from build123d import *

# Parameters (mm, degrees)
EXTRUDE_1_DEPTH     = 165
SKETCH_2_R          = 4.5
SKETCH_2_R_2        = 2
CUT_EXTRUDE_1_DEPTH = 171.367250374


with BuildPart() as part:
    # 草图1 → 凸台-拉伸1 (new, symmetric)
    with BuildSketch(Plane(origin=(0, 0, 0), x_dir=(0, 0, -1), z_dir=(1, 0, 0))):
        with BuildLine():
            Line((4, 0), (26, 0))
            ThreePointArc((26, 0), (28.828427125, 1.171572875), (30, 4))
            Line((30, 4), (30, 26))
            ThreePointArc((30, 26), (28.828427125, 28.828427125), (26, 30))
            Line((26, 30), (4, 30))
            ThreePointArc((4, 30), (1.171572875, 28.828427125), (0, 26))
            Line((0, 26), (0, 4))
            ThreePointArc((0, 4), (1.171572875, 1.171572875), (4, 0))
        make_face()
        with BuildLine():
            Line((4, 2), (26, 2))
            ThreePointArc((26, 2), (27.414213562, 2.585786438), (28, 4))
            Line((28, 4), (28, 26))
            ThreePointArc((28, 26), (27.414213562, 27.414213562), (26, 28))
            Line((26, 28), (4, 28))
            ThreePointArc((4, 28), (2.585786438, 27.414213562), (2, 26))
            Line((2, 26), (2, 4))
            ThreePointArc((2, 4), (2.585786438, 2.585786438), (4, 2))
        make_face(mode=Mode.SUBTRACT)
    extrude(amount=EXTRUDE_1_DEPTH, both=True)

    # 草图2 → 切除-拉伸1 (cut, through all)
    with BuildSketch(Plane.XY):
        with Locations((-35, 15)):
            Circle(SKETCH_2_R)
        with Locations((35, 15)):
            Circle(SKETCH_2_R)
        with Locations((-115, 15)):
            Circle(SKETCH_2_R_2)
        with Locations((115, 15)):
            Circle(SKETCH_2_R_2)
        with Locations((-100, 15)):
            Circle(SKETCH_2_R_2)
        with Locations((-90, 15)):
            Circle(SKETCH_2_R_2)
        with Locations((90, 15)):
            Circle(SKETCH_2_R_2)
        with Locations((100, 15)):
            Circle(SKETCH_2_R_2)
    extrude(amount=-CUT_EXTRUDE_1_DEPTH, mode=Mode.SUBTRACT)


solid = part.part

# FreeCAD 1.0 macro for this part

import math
import FreeCAD as App
import Part
import Sketcher

V = App.Vector
Q = App.Units.Quantity

doc = App.newDocument("Part")
params = doc.addObject("Spreadsheet::Sheet", "Params")
for row, (alias, value) in enumerate([
    ("sketch1_radius", "4 mm"),
    ("sketch1_radius2", "2 mm"),
    ("sketch1_width", "22 mm"),
    ("pad1_length", "330 mm"),
    ("sketch2_diameter", "9 mm"),
    ("sketch2_diameter2", "4 mm"),
], start=1):
    params.set(f"A{row}", alias)
    params.set(f"B{row}", "=" + value)
    params.setAlias(f"B{row}", alias)

body = doc.addObject("PartDesign::Body", "Body")

# Sketch on YZ plane
sketch1 = body.newObject("Sketcher::SketchObject", "Sketch")
sketch1.AttachmentSupport = (doc.getObject("YZ_Plane"), [""])
sketch1.MapMode = "FlatFace"
sketch1.addGeometry([
    Part.LineSegment(V(0, -4, 0), V(0, -26, 0)),  # 0
    Part.ArcOfCircle(Part.Circle(V(4, -26, 0), V(0, 0, 1), 4), math.radians(180), math.radians(270)),  # 1
    Part.LineSegment(V(4, -30, 0), V(26, -30, 0)),  # 2
    Part.ArcOfCircle(Part.Circle(V(26, -26, 0), V(0, 0, 1), 4), math.radians(-90), math.radians(0)),  # 3
    Part.LineSegment(V(30, -26, 0), V(30, -4, 0)),  # 4
    Part.ArcOfCircle(Part.Circle(V(26, -4, 0), V(0, 0, 1), 4), math.radians(0), math.radians(90)),  # 5
    Part.LineSegment(V(26, 0, 0), V(4, 0, 0)),  # 6
    Part.ArcOfCircle(Part.Circle(V(4, -4, 0), V(0, 0, 1), 4), math.radians(90), math.radians(180)),  # 7
    Part.LineSegment(V(2, -26, 0), V(2, -4, 0)),  # 8
    Part.ArcOfCircle(Part.Circle(V(4, -4, 0), V(0, 0, 1), 2), math.radians(90), math.radians(180)),  # 9
    Part.LineSegment(V(4, -2, 0), V(26, -2, 0)),  # 10
    Part.ArcOfCircle(Part.Circle(V(26, -4, 0), V(0, 0, 1), 2), math.radians(0), math.radians(90)),  # 11
    Part.LineSegment(V(28, -4, 0), V(28, -26, 0)),  # 12
    Part.ArcOfCircle(Part.Circle(V(26, -26, 0), V(0, 0, 1), 2), math.radians(-90), math.radians(0)),  # 13
    Part.LineSegment(V(26, -28, 0), V(4, -28, 0)),  # 14
    Part.ArcOfCircle(Part.Circle(V(4, -26, 0), V(0, 0, 1), 2), math.radians(-180), math.radians(-90)),  # 15
], False)
sketch1.addConstraint([
    Sketcher.Constraint("Tangent", 0, 2, 1, 1),
    Sketcher.Constraint("Tangent", 1, 2, 2, 1),
    Sketcher.Constraint("Tangent", 2, 2, 3, 1),
    Sketcher.Constraint("Tangent", 3, 2, 4, 1),
    Sketcher.Constraint("Tangent", 4, 2, 5, 1),
    Sketcher.Constraint("Tangent", 5, 2, 6, 1),
    Sketcher.Constraint("Tangent", 6, 2, 7, 1),
    Sketcher.Constraint("Tangent", 7, 2, 0, 1),
    Sketcher.Constraint("Tangent", 8, 2, 9, 2),
    Sketcher.Constraint("Tangent", 9, 1, 10, 1),
    Sketcher.Constraint("Tangent", 10, 2, 11, 2),
    Sketcher.Constraint("Tangent", 11, 1, 12, 1),
    Sketcher.Constraint("Tangent", 12, 2, 13, 2),
    Sketcher.Constraint("Tangent", 13, 1, 14, 1),
    Sketcher.Constraint("Tangent", 14, 2, 15, 2),
    Sketcher.Constraint("Tangent", 15, 1, 8, 1),
    Sketcher.Constraint("Vertical", 0),
    Sketcher.Constraint("Horizontal", 2),
    Sketcher.Constraint("Vertical", 4),
    Sketcher.Constraint("Horizontal", 6),
    Sketcher.Constraint("Vertical", 8),
    Sketcher.Constraint("Horizontal", 10),
    Sketcher.Constraint("Vertical", 12),
    Sketcher.Constraint("Horizontal", 14),
    Sketcher.Constraint("Coincident", 9, 3, 7, 3),
    Sketcher.Constraint("Coincident", 11, 3, 5, 3),
    Sketcher.Constraint("Coincident", 13, 3, 3, 3),
    Sketcher.Constraint("Equal", 1, 3),
    Sketcher.Constraint("Equal", 3, 5),
    Sketcher.Constraint("Equal", 5, 7),
    Sketcher.Constraint("Equal", 13, 15),
    Sketcher.Constraint("PointOnObject", 0, 2, -2),
    Sketcher.Constraint("PointOnObject", 5, 2, -1),
    Sketcher.Constraint("Equal", 14, 0),
    Sketcher.Constraint("Radius", 1, Q("4 mm")),
    Sketcher.Constraint("Radius", 9, Q("2 mm")),
    Sketcher.Constraint("DistanceX", 2, 1, 2, 2, Q("22 mm")),
])
sketch1.setExpression("Constraints[34]", "Params.sketch1_radius")
sketch1.setExpression("Constraints[35]", "Params.sketch1_radius2")
sketch1.setExpression("Constraints[36]", "Params.sketch1_width")
pad1 = body.newObject("PartDesign::Pad", "Pad")
pad1.Profile = sketch1
pad1.setExpression("Length", "Params.pad1_length")
pad1.Midplane = True

# Sketch on XY plane
sketch2 = body.newObject("Sketcher::SketchObject", "Sketch001")
sketch2.AttachmentSupport = (doc.getObject("XY_Plane"), [""])
sketch2.MapMode = "FlatFace"
sketch2.addGeometry([
    Part.Circle(V(-35, 15, 0), V(0, 0, 1), 4.5),  # 0
    Part.Circle(V(35, 15, 0), V(0, 0, 1), 4.5),  # 1
    Part.Circle(V(-115, 15, 0), V(0, 0, 1), 2),  # 2
    Part.Circle(V(115, 15, 0), V(0, 0, 1), 2),  # 3
    Part.Circle(V(-100, 15, 0), V(0, 0, 1), 2),  # 4
    Part.Circle(V(-90, 15, 0), V(0, 0, 1), 2),  # 5
    Part.Circle(V(90, 15, 0), V(0, 0, 1), 2),  # 6
    Part.Circle(V(100, 15, 0), V(0, 0, 1), 2),  # 7
], False)
sketch2.addConstraint([
    Sketcher.Constraint("Equal", 0, 1),
    Sketcher.Constraint("Equal", 2, 3),
    Sketcher.Constraint("Equal", 3, 4),
    Sketcher.Constraint("Equal", 4, 5),
    Sketcher.Constraint("Equal", 5, 6),
    Sketcher.Constraint("Equal", 6, 7),
    Sketcher.Constraint("Symmetric", 0, 3, 1, 3, -2),
    Sketcher.Constraint("Symmetric", 2, 3, 3, 3, -2),
    Sketcher.Constraint("Symmetric", 5, 3, 6, 3, -2),
    Sketcher.Constraint("Symmetric", 4, 3, 7, 3, -2),
    Sketcher.Constraint("Horizontal", 1, 3, 2, 3),
    Sketcher.Constraint("Horizontal", 3, 3, 4, 3),
    Sketcher.Constraint("Horizontal", 4, 3, 5, 3),
    Sketcher.Constraint("Diameter", 0, Q("9 mm")),
    Sketcher.Constraint("Diameter", 2, Q("4 mm")),
    Sketcher.Constraint("DistanceX", 0, 3, -1, 1, Q("35 mm")),
    Sketcher.Constraint("DistanceY", -1, 1, 0, 3, Q("15 mm")),
    Sketcher.Constraint("DistanceX", 2, 3, -1, 1, Q("115 mm")),
    Sketcher.Constraint("DistanceX", 4, 3, -1, 1, Q("100 mm")),
    Sketcher.Constraint("DistanceX", 5, 3, -1, 1, Q("90 mm")),
])
sketch2.setExpression("Constraints[13]", "Params.sketch2_diameter")
sketch2.setExpression("Constraints[14]", "Params.sketch2_diameter2")
pocket1 = body.newObject("PartDesign::Pocket", "Pocket")
pocket1.Profile = sketch2
pocket1.Type = "ThroughAll"

doc.recompute()
